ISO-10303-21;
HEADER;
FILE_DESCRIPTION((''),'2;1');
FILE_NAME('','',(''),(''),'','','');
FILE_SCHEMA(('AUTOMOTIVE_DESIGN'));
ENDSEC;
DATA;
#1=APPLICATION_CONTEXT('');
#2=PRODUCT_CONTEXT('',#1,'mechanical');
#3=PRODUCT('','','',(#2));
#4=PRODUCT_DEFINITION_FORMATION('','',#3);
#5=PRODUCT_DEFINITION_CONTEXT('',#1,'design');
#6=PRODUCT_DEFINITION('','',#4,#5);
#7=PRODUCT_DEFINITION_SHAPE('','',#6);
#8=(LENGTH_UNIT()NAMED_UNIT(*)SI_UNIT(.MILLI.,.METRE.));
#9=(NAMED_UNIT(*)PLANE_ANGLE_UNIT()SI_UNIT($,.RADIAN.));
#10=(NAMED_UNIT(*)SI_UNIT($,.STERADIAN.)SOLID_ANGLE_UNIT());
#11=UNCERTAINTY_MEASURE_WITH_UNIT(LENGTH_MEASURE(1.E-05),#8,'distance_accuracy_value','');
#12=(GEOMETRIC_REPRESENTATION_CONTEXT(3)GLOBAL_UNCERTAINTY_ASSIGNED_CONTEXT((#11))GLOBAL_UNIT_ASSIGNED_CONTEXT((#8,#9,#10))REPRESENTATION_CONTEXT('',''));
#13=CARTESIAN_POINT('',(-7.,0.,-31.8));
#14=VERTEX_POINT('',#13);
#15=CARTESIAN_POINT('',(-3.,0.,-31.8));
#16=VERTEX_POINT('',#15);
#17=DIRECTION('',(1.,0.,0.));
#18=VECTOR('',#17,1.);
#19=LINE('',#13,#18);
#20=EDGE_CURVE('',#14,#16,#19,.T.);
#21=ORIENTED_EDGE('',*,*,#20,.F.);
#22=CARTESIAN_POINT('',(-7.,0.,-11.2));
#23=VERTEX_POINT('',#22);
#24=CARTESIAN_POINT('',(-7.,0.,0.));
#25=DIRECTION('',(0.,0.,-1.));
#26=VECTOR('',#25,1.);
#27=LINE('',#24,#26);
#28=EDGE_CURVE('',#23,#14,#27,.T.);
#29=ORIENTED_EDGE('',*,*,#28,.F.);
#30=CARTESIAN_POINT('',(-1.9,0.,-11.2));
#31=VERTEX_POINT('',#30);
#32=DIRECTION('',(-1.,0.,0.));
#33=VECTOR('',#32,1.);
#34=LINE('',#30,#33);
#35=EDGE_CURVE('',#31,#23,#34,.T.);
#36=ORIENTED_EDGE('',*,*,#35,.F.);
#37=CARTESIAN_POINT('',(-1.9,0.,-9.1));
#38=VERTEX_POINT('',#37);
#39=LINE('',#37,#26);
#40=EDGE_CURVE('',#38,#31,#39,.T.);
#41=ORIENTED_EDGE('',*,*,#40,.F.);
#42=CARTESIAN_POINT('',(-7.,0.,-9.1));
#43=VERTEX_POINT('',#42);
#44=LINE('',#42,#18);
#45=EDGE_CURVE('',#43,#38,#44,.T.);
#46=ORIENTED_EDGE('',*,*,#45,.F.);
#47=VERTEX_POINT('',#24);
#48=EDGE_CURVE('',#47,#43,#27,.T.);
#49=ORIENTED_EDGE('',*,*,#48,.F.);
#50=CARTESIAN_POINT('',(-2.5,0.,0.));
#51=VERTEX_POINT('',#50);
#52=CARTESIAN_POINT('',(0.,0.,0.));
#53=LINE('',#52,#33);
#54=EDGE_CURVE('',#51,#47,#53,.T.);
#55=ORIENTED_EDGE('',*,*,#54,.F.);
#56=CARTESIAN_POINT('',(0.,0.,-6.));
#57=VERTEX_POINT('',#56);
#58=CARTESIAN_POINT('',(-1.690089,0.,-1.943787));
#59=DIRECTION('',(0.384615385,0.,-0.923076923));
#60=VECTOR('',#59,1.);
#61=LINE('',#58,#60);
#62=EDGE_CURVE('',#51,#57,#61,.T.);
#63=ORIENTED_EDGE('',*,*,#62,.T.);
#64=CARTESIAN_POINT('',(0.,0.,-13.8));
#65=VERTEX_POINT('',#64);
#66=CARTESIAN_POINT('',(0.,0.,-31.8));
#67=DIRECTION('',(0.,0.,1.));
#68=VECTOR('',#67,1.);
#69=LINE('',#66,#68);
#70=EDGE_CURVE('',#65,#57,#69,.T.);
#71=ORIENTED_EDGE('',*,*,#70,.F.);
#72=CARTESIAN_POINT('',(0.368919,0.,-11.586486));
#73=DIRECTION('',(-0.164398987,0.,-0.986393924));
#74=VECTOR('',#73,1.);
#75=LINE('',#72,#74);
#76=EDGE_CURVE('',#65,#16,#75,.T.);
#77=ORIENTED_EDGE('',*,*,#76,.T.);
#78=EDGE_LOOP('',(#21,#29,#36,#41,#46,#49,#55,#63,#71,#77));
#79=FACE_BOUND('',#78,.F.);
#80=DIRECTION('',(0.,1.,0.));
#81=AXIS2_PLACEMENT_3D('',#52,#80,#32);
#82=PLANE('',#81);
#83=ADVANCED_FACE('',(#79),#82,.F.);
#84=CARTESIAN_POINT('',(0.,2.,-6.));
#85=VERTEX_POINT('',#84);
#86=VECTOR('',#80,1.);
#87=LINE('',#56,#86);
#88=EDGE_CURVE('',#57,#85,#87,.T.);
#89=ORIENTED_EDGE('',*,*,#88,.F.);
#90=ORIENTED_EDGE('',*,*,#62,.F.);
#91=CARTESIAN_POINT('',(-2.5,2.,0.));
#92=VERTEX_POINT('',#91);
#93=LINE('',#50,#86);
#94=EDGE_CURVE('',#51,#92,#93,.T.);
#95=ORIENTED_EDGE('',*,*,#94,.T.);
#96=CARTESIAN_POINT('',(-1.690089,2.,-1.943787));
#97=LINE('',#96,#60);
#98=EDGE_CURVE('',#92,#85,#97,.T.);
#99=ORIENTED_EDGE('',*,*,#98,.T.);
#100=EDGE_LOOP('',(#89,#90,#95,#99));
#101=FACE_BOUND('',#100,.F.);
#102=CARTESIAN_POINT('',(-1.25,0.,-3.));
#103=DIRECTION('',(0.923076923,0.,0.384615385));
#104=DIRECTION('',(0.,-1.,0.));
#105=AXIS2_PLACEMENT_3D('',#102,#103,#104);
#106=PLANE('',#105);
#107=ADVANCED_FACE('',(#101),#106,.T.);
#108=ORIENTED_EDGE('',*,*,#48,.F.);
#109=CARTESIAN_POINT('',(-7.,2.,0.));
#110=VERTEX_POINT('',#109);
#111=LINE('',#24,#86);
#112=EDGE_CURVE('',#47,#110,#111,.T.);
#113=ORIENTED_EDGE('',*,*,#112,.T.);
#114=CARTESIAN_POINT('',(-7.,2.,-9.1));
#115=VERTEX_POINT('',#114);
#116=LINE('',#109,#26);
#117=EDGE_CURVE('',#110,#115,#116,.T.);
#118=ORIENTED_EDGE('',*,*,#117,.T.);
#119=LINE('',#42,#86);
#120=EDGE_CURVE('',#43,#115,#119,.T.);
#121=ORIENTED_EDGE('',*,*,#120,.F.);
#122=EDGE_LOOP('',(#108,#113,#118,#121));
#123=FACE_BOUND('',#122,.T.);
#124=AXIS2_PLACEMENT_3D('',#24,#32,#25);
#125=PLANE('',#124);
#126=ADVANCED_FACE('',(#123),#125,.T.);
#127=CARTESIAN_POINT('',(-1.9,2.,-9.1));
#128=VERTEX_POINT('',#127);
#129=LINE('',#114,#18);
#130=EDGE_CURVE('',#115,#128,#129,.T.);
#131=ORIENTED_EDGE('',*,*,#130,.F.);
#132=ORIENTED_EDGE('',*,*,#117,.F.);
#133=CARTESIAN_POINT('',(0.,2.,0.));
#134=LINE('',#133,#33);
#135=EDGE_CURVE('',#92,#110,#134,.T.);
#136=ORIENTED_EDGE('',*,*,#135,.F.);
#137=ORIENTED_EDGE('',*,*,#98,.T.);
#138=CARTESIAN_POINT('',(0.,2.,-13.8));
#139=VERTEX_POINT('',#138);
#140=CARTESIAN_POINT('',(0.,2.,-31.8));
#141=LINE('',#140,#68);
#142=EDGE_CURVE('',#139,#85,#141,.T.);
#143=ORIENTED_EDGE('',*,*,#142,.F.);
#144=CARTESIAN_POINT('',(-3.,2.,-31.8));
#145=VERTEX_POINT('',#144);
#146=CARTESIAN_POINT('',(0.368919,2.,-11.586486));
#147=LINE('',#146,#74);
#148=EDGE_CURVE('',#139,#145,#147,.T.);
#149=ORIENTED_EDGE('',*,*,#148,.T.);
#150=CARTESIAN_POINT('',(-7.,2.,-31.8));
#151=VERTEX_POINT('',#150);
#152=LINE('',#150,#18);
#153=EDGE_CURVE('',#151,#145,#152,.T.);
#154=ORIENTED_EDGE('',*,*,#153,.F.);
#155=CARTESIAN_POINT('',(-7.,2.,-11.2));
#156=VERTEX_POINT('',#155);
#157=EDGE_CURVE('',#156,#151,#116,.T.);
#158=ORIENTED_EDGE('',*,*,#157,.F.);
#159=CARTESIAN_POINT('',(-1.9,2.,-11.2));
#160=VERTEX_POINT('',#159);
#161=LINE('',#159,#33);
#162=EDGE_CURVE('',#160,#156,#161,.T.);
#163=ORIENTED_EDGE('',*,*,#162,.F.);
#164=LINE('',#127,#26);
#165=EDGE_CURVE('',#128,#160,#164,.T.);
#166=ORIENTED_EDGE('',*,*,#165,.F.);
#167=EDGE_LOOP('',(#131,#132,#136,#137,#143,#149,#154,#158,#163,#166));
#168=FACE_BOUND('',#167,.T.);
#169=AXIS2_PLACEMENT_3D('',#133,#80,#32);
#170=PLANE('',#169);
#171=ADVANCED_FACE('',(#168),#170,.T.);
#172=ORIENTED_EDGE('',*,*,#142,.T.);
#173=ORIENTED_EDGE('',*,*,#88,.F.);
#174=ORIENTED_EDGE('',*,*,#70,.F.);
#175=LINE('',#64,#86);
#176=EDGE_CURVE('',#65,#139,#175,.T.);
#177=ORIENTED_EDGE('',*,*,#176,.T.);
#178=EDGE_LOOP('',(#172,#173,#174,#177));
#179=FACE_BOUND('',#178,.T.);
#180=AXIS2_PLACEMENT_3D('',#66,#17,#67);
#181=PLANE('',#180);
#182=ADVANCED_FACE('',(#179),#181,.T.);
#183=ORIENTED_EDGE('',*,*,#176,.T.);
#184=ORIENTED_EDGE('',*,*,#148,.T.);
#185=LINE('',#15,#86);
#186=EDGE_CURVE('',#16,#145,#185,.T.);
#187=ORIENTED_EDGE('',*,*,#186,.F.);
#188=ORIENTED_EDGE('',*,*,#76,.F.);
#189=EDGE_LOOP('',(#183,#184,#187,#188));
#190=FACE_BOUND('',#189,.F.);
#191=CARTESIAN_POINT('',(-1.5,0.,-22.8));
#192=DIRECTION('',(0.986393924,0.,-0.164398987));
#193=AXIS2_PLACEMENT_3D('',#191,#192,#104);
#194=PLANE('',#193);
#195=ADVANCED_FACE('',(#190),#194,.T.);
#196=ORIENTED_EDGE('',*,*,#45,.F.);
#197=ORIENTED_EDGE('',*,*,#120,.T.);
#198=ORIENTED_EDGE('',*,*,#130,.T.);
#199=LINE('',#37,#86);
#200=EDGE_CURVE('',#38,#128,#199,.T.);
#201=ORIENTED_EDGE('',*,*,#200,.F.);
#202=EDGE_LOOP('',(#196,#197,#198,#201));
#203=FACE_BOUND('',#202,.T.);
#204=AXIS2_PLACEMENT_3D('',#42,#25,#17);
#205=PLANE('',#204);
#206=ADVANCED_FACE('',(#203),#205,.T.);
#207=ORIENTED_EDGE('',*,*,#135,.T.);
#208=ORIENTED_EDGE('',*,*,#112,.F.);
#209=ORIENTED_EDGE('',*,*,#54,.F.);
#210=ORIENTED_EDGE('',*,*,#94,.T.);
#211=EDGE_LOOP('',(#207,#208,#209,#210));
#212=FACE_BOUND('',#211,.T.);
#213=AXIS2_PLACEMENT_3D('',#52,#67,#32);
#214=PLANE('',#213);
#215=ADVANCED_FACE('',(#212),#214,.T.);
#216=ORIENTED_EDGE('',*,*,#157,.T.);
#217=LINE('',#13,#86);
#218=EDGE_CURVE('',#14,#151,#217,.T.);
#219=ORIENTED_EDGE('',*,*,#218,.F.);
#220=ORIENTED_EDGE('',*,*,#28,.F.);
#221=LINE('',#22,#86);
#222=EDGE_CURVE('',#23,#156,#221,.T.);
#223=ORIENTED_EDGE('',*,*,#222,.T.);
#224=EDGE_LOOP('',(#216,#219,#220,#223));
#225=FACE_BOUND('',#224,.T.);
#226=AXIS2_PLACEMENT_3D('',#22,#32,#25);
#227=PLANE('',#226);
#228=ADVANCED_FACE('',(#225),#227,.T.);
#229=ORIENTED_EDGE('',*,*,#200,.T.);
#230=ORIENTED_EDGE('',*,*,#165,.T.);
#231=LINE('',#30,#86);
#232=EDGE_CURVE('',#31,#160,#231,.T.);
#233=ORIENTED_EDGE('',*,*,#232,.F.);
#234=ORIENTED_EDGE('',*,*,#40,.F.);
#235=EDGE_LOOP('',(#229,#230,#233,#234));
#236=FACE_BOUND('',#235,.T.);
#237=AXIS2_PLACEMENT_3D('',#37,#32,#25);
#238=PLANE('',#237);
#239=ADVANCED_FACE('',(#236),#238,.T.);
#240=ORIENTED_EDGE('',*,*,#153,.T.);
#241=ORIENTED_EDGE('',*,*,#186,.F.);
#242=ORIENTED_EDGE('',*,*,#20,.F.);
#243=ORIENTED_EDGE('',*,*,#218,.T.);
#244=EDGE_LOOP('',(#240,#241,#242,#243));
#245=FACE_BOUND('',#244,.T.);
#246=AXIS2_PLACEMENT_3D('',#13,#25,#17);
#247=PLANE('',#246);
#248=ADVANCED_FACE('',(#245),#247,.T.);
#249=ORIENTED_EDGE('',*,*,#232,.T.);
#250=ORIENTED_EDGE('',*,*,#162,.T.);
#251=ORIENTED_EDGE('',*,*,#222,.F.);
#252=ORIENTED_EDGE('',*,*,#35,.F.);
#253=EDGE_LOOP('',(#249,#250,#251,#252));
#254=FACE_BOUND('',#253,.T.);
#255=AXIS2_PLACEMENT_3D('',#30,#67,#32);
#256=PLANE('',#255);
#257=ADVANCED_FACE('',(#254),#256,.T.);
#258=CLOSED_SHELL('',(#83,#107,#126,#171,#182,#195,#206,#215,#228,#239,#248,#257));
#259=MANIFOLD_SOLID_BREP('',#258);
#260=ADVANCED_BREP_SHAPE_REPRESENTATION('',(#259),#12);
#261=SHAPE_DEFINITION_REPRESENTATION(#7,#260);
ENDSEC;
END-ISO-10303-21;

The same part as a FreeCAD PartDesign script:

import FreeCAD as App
import Part
import Sketcher
Q = App.Units.Quantity


def edges_at(feature, points):
    """Names of the edges that pass closest to the given points."""
    edges = feature.Shape.Edges
    near = lambda p: min(range(len(edges)), key=lambda i: edges[i].distToShape(Part.Vertex(*p))[0])
    return sorted({f"Edge{near(p) + 1}" for p in points})


def add_polygon(sketch, points):
    """Adds a closed chain of lines whose ends are joined by coincident constraints."""
    first, n = sketch.GeometryCount, len(points)
    for a, b in zip(points, points[1:] + points[:1]):
        sketch.addGeometry(Part.LineSegment(App.Vector(*a, 0), App.Vector(*b, 0)), False)
    for i in range(n):
        sketch.addConstraint(Sketcher.Constraint("Coincident", first + i, 2, first + (i + 1) % n, 1))

doc = App.newDocument("Part")
body = doc.addObject("PartDesign::Body", "Body")

# Sketch on XZ plane
sketch1 = body.newObject("Sketcher::SketchObject", "Sketch")
sketch1.AttachmentSupport = (doc.getObject("XZ_Plane"), [""])
sketch1.MapMode = "FlatFace"
add_polygon(sketch1, [(-7, 0), (0, 0), (0, -31.8), (-7, -31.8), (-7, -11.2), (-1.9, -11.2), (-1.9, -9.1), (-7, -9.1)])  # lines 0-7
sketch1.addConstraint([
    Sketcher.Constraint("Horizontal", 0),
    Sketcher.Constraint("Vertical", 1),
    Sketcher.Constraint("Horizontal", 2),
    Sketcher.Constraint("Vertical", 3),
    Sketcher.Constraint("Horizontal", 4),
    Sketcher.Constraint("Vertical", 5),
    Sketcher.Constraint("Horizontal", 6),
    Sketcher.Constraint("Vertical", 7),
    Sketcher.Constraint("Coincident", 0, 2, -1, 1),
    Sketcher.Constraint("Vertical", 3, 2, 6, 2),
    Sketcher.Constraint("DistanceX", 0, 1, 0, 2, Q("7 mm")),
    Sketcher.Constraint("DistanceX", 4, 1, 4, 2, Q("5.1 mm")),
    Sketcher.Constraint("DistanceY", 1, 2, 1, 1, Q("31.8 mm")),
    Sketcher.Constraint("DistanceY", 5, 1, 5, 2, Q("2.1 mm")),
    Sketcher.Constraint("DistanceY", 7, 1, 7, 2, Q("9.1 mm")),
])
pad1 = body.newObject("PartDesign::Pad", "Pad")
pad1.Profile = sketch1
pad1.Length = 2
pad1.Reversed = True
doc.recompute()

chamfer = body.newObject("PartDesign::Chamfer", "Chamfer")
chamfer.Base = (pad1, edges_at(pad1, [(0, 1, 0)]))
chamfer.ChamferType = "Two distances"
chamfer.Size = 2.5
chamfer.Size2 = 6
doc.recompute()

chamfer2 = body.newObject("PartDesign::Chamfer", "Chamfer001")
chamfer2.Base = (chamfer, edges_at(chamfer, [(0, 1, -31.8)]))
chamfer2.ChamferType = "Two distances"
chamfer2.Size = 18
chamfer2.Size2 = 3

doc.recompute()
